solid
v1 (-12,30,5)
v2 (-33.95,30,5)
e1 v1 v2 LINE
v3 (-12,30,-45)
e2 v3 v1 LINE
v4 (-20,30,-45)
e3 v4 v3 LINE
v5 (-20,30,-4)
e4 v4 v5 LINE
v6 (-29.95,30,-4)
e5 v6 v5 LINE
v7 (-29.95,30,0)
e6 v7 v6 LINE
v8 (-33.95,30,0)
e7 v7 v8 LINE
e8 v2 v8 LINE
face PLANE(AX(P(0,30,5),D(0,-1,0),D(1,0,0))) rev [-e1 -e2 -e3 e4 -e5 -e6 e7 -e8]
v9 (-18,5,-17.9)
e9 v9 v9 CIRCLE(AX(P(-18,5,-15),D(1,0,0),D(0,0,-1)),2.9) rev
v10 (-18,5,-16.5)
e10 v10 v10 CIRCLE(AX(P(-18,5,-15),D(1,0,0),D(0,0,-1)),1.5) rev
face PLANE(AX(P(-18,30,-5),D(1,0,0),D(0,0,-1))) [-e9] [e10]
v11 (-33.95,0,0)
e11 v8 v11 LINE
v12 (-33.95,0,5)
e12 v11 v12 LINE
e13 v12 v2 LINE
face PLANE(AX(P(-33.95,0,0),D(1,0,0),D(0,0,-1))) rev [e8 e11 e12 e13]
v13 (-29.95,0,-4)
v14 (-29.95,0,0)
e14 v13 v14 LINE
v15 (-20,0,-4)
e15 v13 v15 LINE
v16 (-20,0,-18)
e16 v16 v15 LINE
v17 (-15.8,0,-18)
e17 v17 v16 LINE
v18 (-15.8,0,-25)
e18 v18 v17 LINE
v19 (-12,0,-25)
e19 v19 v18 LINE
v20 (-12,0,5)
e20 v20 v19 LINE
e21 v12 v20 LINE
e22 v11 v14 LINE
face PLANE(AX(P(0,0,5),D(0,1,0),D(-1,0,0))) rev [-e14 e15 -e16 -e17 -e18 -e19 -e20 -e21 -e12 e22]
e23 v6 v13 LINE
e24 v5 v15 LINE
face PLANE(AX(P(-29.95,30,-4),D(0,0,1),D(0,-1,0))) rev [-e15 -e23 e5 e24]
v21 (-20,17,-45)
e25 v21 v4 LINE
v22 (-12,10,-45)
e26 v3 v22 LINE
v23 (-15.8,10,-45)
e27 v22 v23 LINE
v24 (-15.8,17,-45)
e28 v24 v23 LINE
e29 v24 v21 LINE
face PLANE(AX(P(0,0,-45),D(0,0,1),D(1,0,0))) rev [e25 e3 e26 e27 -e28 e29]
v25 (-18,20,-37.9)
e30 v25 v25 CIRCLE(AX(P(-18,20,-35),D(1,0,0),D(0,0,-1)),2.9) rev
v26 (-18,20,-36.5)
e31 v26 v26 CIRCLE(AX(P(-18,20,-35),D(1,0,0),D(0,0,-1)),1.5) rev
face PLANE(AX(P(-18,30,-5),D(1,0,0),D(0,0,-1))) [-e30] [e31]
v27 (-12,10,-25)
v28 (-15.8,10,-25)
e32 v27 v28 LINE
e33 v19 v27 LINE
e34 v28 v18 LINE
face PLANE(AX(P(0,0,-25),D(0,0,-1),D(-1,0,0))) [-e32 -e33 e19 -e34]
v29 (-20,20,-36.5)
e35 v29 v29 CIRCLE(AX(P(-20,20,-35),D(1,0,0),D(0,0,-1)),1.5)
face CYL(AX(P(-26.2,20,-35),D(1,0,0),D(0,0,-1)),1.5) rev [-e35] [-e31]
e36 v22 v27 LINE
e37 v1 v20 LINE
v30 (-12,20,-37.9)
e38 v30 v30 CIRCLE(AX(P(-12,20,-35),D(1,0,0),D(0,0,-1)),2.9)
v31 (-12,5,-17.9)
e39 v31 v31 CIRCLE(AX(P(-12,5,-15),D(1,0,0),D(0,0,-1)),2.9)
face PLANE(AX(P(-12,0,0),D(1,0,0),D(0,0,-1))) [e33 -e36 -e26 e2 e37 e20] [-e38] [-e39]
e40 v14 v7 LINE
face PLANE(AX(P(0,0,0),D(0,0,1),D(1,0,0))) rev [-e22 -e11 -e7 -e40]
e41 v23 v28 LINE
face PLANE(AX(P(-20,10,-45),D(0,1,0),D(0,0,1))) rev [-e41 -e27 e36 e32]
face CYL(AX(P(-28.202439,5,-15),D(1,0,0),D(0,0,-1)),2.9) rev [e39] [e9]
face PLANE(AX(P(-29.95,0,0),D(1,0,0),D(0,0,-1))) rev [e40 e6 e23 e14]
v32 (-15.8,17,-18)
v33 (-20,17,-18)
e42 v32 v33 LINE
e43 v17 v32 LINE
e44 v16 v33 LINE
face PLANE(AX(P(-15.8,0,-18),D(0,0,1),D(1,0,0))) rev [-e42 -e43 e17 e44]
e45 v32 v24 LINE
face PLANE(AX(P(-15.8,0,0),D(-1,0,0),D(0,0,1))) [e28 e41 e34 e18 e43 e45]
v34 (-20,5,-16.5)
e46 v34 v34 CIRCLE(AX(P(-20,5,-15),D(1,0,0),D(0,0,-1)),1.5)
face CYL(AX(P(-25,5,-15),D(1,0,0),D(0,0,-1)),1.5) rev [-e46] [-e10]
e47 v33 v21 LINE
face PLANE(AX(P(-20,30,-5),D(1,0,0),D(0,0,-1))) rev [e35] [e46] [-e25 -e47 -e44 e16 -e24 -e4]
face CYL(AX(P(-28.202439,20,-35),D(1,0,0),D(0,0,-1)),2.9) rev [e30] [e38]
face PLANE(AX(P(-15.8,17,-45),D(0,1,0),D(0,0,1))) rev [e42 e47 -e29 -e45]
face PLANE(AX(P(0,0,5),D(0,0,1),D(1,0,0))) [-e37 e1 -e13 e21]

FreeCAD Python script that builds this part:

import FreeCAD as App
import Part
import Sketcher
Q = App.Units.Quantity


def add_polygon(sketch, points):
    """Adds a closed chain of lines whose ends are joined by coincident constraints."""
    first, n = sketch.GeometryCount, len(points)
    for a, b in zip(points, points[1:] + points[:1]):
        sketch.addGeometry(Part.LineSegment(App.Vector(*a, 0), App.Vector(*b, 0)), False)
    for i in range(n):
        sketch.addConstraint(Sketcher.Constraint("Coincident", first + i, 2, first + (i + 1) % n, 1))

doc = App.newDocument("Part")
body = doc.addObject("PartDesign::Body", "Body")

sketch1 = doc.addObject("Sketcher::SketchObject", "Sketch")
body.addObject(sketch1)
sketch1.AttachmentSupport = (doc.XY_Plane, [""])
sketch1.MapMode = "FlatFace"
add_polygon(sketch1, [(-40, 30), (-40, 0), (0, 0), (0, 30)])
sketch1.addConstraint([
    Sketcher.Constraint("Vertical", 0),
    Sketcher.Constraint("Horizontal", 1),
    Sketcher.Constraint("Vertical", 2),
    Sketcher.Constraint("Horizontal", 3),
    Sketcher.Constraint("Coincident", 1, 2, -1, 1),
    Sketcher.Constraint("DistanceX", 1, 1, 1, 2, Q("40 mm")),
    Sketcher.Constraint("DistanceY", 0, 2, 0, 1, Q("30 mm")),
])
pad1 = doc.addObject("PartDesign::Pad", "Pad")
body.addObject(pad1)
pad1.Profile = sketch1
pad1.Length = 5

sketch2 = doc.addObject("Sketcher::SketchObject", "Sketch001")
body.addObject(sketch2)
sketch2.AttachmentSupport = (doc.YZ_Plane, [""])
sketch2.MapMode = "FlatFace"
sketch2.AttachmentOffset = App.Placement(App.Vector(0, 0, -40), App.Rotation())
add_polygon(sketch2, [(30, 0), (0, 0), (0, 5), (30, 5)])
sketch2.addConstraint([
    Sketcher.Constraint("Horizontal", 0),
    Sketcher.Constraint("Vertical", 1),
    Sketcher.Constraint("Horizontal", 2),
    Sketcher.Constraint("Vertical", 3),
    Sketcher.Constraint("Coincident", 0, 2, -1, 1),
    Sketcher.Constraint("DistanceX", 0, 2, 0, 1, Q("30 mm")),
    Sketcher.Constraint("DistanceY", 1, 1, 1, 2, Q("5 mm")),
])
pad2 = doc.addObject("PartDesign::Pad", "Pad001")
body.addObject(pad2)
pad2.Profile = sketch2
pad2.Length = 20
pad2.Reversed = True

sketch3 = doc.addObject("Sketcher::SketchObject", "Sketch002")
body.addObject(sketch3)
sketch3.AttachmentSupport = (doc.XY_Plane, [""])
sketch3.MapMode = "FlatFace"
add_polygon(sketch3, [(0, 30), (0, 0), (-20, 0), (-20, 30)])
sketch3.addConstraint([
    Sketcher.Constraint("Vertical", 0),
    Sketcher.Constraint("Horizontal", 1),
    Sketcher.Constraint("Vertical", 2),
    Sketcher.Constraint("Horizontal", 3),
    Sketcher.Constraint("Coincident", 0, 2, -1, 1),
    Sketcher.Constraint("DistanceX", 1, 2, 1, 1, Q("20 mm")),
    Sketcher.Constraint("DistanceY", 0, 2, 0, 1, Q("30 mm")),
])
pad3 = doc.addObject("PartDesign::Pad", "Pad002")
body.addObject(pad3)
pad3.Profile = sketch3
pad3.Length = 5
pad3.Reversed = True

sketch4 = doc.addObject("Sketcher::SketchObject", "Sketch003")
body.addObject(sketch4)
sketch4.AttachmentSupport = (doc.XY_Plane, [""])
sketch4.MapMode = "FlatFace"
sketch4.AttachmentOffset = App.Placement(App.Vector(0, 0, 5), App.Rotation())
add_polygon(sketch4, [(-15, 30), (-15, 0), (0, 0), (0, 30)])
sketch4.addConstraint([
    Sketcher.Constraint("Vertical", 0),
    Sketcher.Constraint("Horizontal", 1),
    Sketcher.Constraint("Vertical", 2),
    Sketcher.Constraint("Horizontal", 3),
    Sketcher.Constraint("Coincident", 1, 2, -1, 1),
    Sketcher.Constraint("DistanceX", 1, 1, 1, 2, Q("15 mm")),
    Sketcher.Constraint("DistanceY", 0, 2, 0, 1, Q("30 mm")),
])
pocket1 = doc.addObject("PartDesign::Pocket", "Pocket")
body.addObject(pocket1)
pocket1.Profile = sketch4
pocket1.Length = 5

sketch5 = doc.addObject("Sketcher::SketchObject", "Sketch004")
body.addObject(sketch5)
sketch5.AttachmentSupport = (doc.XY_Plane, [""])
sketch5.MapMode = "FlatFace"
sketch5.addGeometry([
    Part.Circle(App.Vector(-7.5, 25, 0), App.Vector(0, 0, 1), 1.5),
    Part.Circle(App.Vector(-7.5, 5, 0), App.Vector(0, 0, 1), 1.5),
], False)
sketch5.addConstraint([
    Sketcher.Constraint("Equal", 0, 1),
    Sketcher.Constraint("Vertical", 0, 3, 1, 3),
    Sketcher.Constraint("Diameter", 0, Q("3 mm")),
    Sketcher.Constraint("DistanceY", -1, 1, 0, 3, Q("25 mm")),
    Sketcher.Constraint("DistanceY", -1, 1, 1, 3, Q("5 mm")),
    Sketcher.Constraint("DistanceX", 0, 3, -1, 1, Q("7.5 mm")),
])
pocket2 = doc.addObject("PartDesign::Pocket", "Pocket001")
body.addObject(pocket2)
pocket2.Profile = sketch5
pocket2.Length = 5

sketch6 = doc.addObject("Sketcher::SketchObject", "Sketch005")
body.addObject(sketch6)
sketch6.AttachmentSupport = (doc.XY_Plane, [""])
sketch6.MapMode = "FlatFace"
add_polygon(sketch6, [(-15, 30), (-15, 0), (0, 0), (0, 30)])
sketch6.addConstraint([
    Sketcher.Constraint("Vertical", 0),
    Sketcher.Constraint("Horizontal", 1),
    Sketcher.Constraint("Vertical", 2),
    Sketcher.Constraint("Horizontal", 3),
    Sketcher.Constraint("Coincident", 1, 2, -1, 1),
    Sketcher.Constraint("DistanceX", 1, 1, 1, 2, Q("15 mm")),
    Sketcher.Constraint("DistanceY", 0, 2, 0, 1, Q("30 mm")),
])
pocket3 = doc.addObject("PartDesign::Pocket", "Pocket002")
body.addObject(pocket3)
pocket3.Profile = sketch6
pocket3.Length = 5

sketch7 = doc.addObject("Sketcher::SketchObject", "Sketch006")
body.addObject(sketch7)
sketch7.AttachmentSupport = (doc.XY_Plane, [""])
sketch7.MapMode = "FlatFace"
sketch7.AttachmentOffset = App.Placement(App.Vector(0, 0, -5), App.Rotation())
add_polygon(sketch7, [(-15, 30), (-15, 0), (-20, 0), (-20, 30)])
sketch7.addConstraint([
    Sketcher.Constraint("Vertical", 0),
    Sketcher.Constraint("Horizontal", 1),
    Sketcher.Constraint("Vertical", 2),
    Sketcher.Constraint("Horizontal", 3),
    Sketcher.Constraint("PointOnObject", 0, 2, -1),
    Sketcher.Constraint("DistanceX", 1, 2, 1, 1, Q("5 mm")),
    Sketcher.Constraint("DistanceY", 0, 2, 0, 1, Q("30 mm")),
    Sketcher.Constraint("DistanceX", 0, 2, -1, 1, Q("15 mm")),
])
pad4 = doc.addObject("PartDesign::Pad", "Pad003")
body.addObject(pad4)
pad4.Profile = sketch7
pad4.Length = 20
pad4.Reversed = True

sketch8 = doc.addObject("Sketcher::SketchObject", "Sketch007")
body.addObject(sketch8)
sketch8.AttachmentSupport = (doc.YZ_Plane, [""])
sketch8.MapMode = "FlatFace"
sketch8.AttachmentOffset = App.Placement(App.Vector(0, 0, -15), App.Rotation())
add_polygon(sketch8, [(30, 5), (0, 5), (0, -25), (30, -25)])
sketch8.addConstraint([
    Sketcher.Constraint("Horizontal", 0),
    Sketcher.Constraint("Vertical", 1),
    Sketcher.Constraint("Horizontal", 2),
    Sketcher.Constraint("Vertical", 3),
    Sketcher.Constraint("PointOnObject", 0, 2, -2),
    Sketcher.Constraint("Equal", 2, 1),
    Sketcher.Constraint("DistanceX", 0, 2, 0, 1, Q("30 mm")),
    Sketcher.Constraint("DistanceY", -1, 1, 0, 2, Q("5 mm")),
])
pad5 = doc.addObject("PartDesign::Pad", "Pad004")
body.addObject(pad5)
pad5.Profile = sketch8
pad5.Length = 3

sketch9 = doc.addObject("Sketcher::SketchObject", "Sketch008")
body.addObject(sketch9)
sketch9.AttachmentSupport = (doc.YZ_Plane, [""])
sketch9.MapMode = "FlatFace"
sketch9.AttachmentOffset = App.Placement(App.Vector(0, 0, -12), App.Rotation())
sketch9.addGeometry(Part.Circle(App.Vector(5, -15, 0), App.Vector(0, 0, 1), 1.5), False)
sketch9.addConstraint([
    Sketcher.Constraint("Diameter", 0, Q("3 mm")),
    Sketcher.Constraint("DistanceX", -1, 1, 0, 3, Q("5 mm")),
    Sketcher.Constraint("DistanceY", 0, 3, -1, 1, Q("15 mm")),
])
pocket4 = doc.addObject("PartDesign::Pocket", "Pocket003")
body.addObject(pocket4)
pocket4.Profile = sketch9
pocket4.Length = 13

sketch10 = doc.addObject("Sketcher::SketchObject", "Sketch009")
body.addObject(sketch10)
sketch10.AttachmentSupport = (doc.YZ_Plane, [""])
sketch10.MapMode = "FlatFace"
sketch10.AttachmentOffset = App.Placement(App.Vector(0, 0, -12), App.Rotation())
sketch10.addGeometry(Part.Circle(App.Vector(5, -15, 0), App.Vector(0, 0, 1), 2.9), False)
sketch10.addConstraint([
    Sketcher.Constraint("Diameter", 0, Q("5.8 mm")),
    Sketcher.Constraint("DistanceX", -1, 1, 0, 3, Q("5 mm")),
    Sketcher.Constraint("DistanceY", 0, 3, -1, 1, Q("15 mm")),
])
pocket5 = doc.addObject("PartDesign::Pocket", "Pocket004")
body.addObject(pocket5)
pocket5.Profile = sketch10
pocket5.Length = 6

sketch11 = doc.addObject("Sketcher::SketchObject", "Sketch010")
body.addObject(sketch11)
sketch11.AttachmentSupport = (doc.XY_Plane, [""])
sketch11.MapMode = "FlatFace"
sketch11.AttachmentOffset = App.Placement(App.Vector(0, 0, -25), App.Rotation())
add_polygon(sketch11, [(-12, 30), (-12, 10), (-20, 10), (-20, 30)])
sketch11.addConstraint([
    Sketcher.Constraint("Vertical", 0),
    Sketcher.Constraint("Horizontal", 1),
    Sketcher.Constraint("Vertical", 2),
    Sketcher.Constraint("Horizontal", 3),
    Sketcher.Constraint("DistanceX", 1, 2, 1, 1, Q("8 mm")),
    Sketcher.Constraint("DistanceY", 0, 2, 0, 1, Q("20 mm")),
    Sketcher.Constraint("DistanceX", 0, 2, -1, 1, Q("12 mm")),
    Sketcher.Constraint("DistanceY", -1, 1, 0, 2, Q("10 mm")),
])
pad6 = doc.addObject("PartDesign::Pad", "Pad005")
body.addObject(pad6)
pad6.Profile = sketch11
pad6.Length = 20
pad6.Reversed = True

sketch12 = doc.addObject("Sketcher::SketchObject", "Sketch011")
body.addObject(sketch12)
sketch12.AttachmentSupport = (doc.YZ_Plane, [""])
sketch12.MapMode = "FlatFace"
sketch12.AttachmentOffset = App.Placement(App.Vector(0, 0, -20), App.Rotation())
add_polygon(sketch12, [(17, -18), (17, -45), (10, -45), (10, -25), (0, -25), (0, -18)])
sketch12.addConstraint([
    Sketcher.Constraint("Vertical", 0),
    Sketcher.Constraint("Horizontal", 1),
    Sketcher.Constraint("Vertical", 2),
    Sketcher.Constraint("Horizontal", 3),
    Sketcher.Constraint("Vertical", 4),
    Sketcher.Constraint("Horizontal", 5),
    Sketcher.Constraint("PointOnObject", 3, 2, -2),
    Sketcher.Constraint("Equal", 1, 4),
    Sketcher.Constraint("DistanceX", 1, 2, 1, 1, Q("7 mm")),
    Sketcher.Constraint("DistanceX", 3, 2, 3, 1, Q("10 mm")),
    Sketcher.Constraint("DistanceY", 0, 2, 0, 1, Q("27 mm")),
    Sketcher.Constraint("DistanceY", 0, 2, -1, 1, Q("45 mm")),
])
pocket6 = doc.addObject("PartDesign::Pocket", "Pocket005")
body.addObject(pocket6)
pocket6.Profile = sketch12
pocket6.Length = 4.2
pocket6.Reversed = True

sketch13 = doc.addObject("Sketcher::SketchObject", "Sketch012")
body.addObject(sketch13)
sketch13.AttachmentSupport = (doc.YZ_Plane, [""])
sketch13.MapMode = "FlatFace"
sketch13.AttachmentOffset = App.Placement(App.Vector(0, 0, -12), App.Rotation())
sketch13.addGeometry(Part.Circle(App.Vector(20, -35, 0), App.Vector(0, 0, 1), 1.5), False)
sketch13.addConstraint([
    Sketcher.Constraint("Diameter", 0, Q("3 mm")),
    Sketcher.Constraint("DistanceX", -1, 1, 0, 3, Q("20 mm")),
    Sketcher.Constraint("DistanceY", 0, 3, -1, 1, Q("35 mm")),
])
pocket7 = doc.addObject("PartDesign::Pocket", "Pocket006")
body.addObject(pocket7)
pocket7.Profile = sketch13
pocket7.Length = 14.2

sketch14 = doc.addObject("Sketcher::SketchObject", "Sketch013")
body.addObject(sketch14)
sketch14.AttachmentSupport = (doc.YZ_Plane, [""])
sketch14.MapMode = "FlatFace"
sketch14.AttachmentOffset = App.Placement(App.Vector(0, 0, -12), App.Rotation())
sketch14.addGeometry(Part.Circle(App.Vector(20, -35, 0), App.Vector(0, 0, 1), 2.9), False)
sketch14.addConstraint([
    Sketcher.Constraint("Diameter", 0, Q("5.8 mm")),
    Sketcher.Constraint("DistanceX", -1, 1, 0, 3, Q("20 mm")),
    Sketcher.Constraint("DistanceY", 0, 3, -1, 1, Q("35 mm")),
])
pocket8 = doc.addObject("PartDesign::Pocket", "Pocket007")
body.addObject(pocket8)
pocket8.Profile = sketch14
pocket8.Length = 6

sketch15 = doc.addObject("Sketcher::SketchObject", "Sketch014")
body.addObject(sketch15)
sketch15.AttachmentSupport = (doc.YZ_Plane, [""])
sketch15.MapMode = "FlatFace"
sketch15.AttachmentOffset = App.Placement(App.Vector(0, 0, -20), App.Rotation())
add_polygon(sketch15, [(30, -4), (0, -4), (0, 0), (30, 0)])
sketch15.addConstraint([
    Sketcher.Constraint("Horizontal", 0),
    Sketcher.Constraint("Vertical", 1),
    Sketcher.Constraint("Horizontal", 2),
    Sketcher.Constraint("Vertical", 3),
    Sketcher.Constraint("Coincident", 1, 2, -1, 1),
    Sketcher.Constraint("DistanceX", 0, 2, 0, 1, Q("30 mm")),
    Sketcher.Constraint("DistanceY", 1, 1, 1, 2, Q("4 mm")),
])
pad7 = doc.addObject("PartDesign::Pad", "Pad006")
body.addObject(pad7)
pad7.Profile = sketch15
pad7.Length = 9.95
pad7.Reversed = True

sketch16 = doc.addObject("Sketcher::SketchObject", "Sketch015")
body.addObject(sketch16)
sketch16.AttachmentSupport = (doc.YZ_Plane, [""])
sketch16.MapMode = "FlatFace"
sketch16.AttachmentOffset = App.Placement(App.Vector(0, 0, -60), App.Rotation())
add_polygon(sketch16, [(30, 0), (0, 0), (0, 5), (30, 5)])
sketch16.addConstraint([
    Sketcher.Constraint("Horizontal", 0),
    Sketcher.Constraint("Vertical", 1),
    Sketcher.Constraint("Horizontal", 2),
    Sketcher.Constraint("Vertical", 3),
    Sketcher.Constraint("Coincident", 0, 2, -1, 1),
    Sketcher.Constraint("DistanceX", 0, 2, 0, 1, Q("30 mm")),
    Sketcher.Constraint("DistanceY", 1, 1, 1, 2, Q("5 mm")),
])
pocket9 = doc.addObject("PartDesign::Pocket", "Pocket008")
body.addObject(pocket9)
pocket9.Profile = sketch16
pocket9.Length = 26.05
pocket9.Reversed = True

doc.recompute()
